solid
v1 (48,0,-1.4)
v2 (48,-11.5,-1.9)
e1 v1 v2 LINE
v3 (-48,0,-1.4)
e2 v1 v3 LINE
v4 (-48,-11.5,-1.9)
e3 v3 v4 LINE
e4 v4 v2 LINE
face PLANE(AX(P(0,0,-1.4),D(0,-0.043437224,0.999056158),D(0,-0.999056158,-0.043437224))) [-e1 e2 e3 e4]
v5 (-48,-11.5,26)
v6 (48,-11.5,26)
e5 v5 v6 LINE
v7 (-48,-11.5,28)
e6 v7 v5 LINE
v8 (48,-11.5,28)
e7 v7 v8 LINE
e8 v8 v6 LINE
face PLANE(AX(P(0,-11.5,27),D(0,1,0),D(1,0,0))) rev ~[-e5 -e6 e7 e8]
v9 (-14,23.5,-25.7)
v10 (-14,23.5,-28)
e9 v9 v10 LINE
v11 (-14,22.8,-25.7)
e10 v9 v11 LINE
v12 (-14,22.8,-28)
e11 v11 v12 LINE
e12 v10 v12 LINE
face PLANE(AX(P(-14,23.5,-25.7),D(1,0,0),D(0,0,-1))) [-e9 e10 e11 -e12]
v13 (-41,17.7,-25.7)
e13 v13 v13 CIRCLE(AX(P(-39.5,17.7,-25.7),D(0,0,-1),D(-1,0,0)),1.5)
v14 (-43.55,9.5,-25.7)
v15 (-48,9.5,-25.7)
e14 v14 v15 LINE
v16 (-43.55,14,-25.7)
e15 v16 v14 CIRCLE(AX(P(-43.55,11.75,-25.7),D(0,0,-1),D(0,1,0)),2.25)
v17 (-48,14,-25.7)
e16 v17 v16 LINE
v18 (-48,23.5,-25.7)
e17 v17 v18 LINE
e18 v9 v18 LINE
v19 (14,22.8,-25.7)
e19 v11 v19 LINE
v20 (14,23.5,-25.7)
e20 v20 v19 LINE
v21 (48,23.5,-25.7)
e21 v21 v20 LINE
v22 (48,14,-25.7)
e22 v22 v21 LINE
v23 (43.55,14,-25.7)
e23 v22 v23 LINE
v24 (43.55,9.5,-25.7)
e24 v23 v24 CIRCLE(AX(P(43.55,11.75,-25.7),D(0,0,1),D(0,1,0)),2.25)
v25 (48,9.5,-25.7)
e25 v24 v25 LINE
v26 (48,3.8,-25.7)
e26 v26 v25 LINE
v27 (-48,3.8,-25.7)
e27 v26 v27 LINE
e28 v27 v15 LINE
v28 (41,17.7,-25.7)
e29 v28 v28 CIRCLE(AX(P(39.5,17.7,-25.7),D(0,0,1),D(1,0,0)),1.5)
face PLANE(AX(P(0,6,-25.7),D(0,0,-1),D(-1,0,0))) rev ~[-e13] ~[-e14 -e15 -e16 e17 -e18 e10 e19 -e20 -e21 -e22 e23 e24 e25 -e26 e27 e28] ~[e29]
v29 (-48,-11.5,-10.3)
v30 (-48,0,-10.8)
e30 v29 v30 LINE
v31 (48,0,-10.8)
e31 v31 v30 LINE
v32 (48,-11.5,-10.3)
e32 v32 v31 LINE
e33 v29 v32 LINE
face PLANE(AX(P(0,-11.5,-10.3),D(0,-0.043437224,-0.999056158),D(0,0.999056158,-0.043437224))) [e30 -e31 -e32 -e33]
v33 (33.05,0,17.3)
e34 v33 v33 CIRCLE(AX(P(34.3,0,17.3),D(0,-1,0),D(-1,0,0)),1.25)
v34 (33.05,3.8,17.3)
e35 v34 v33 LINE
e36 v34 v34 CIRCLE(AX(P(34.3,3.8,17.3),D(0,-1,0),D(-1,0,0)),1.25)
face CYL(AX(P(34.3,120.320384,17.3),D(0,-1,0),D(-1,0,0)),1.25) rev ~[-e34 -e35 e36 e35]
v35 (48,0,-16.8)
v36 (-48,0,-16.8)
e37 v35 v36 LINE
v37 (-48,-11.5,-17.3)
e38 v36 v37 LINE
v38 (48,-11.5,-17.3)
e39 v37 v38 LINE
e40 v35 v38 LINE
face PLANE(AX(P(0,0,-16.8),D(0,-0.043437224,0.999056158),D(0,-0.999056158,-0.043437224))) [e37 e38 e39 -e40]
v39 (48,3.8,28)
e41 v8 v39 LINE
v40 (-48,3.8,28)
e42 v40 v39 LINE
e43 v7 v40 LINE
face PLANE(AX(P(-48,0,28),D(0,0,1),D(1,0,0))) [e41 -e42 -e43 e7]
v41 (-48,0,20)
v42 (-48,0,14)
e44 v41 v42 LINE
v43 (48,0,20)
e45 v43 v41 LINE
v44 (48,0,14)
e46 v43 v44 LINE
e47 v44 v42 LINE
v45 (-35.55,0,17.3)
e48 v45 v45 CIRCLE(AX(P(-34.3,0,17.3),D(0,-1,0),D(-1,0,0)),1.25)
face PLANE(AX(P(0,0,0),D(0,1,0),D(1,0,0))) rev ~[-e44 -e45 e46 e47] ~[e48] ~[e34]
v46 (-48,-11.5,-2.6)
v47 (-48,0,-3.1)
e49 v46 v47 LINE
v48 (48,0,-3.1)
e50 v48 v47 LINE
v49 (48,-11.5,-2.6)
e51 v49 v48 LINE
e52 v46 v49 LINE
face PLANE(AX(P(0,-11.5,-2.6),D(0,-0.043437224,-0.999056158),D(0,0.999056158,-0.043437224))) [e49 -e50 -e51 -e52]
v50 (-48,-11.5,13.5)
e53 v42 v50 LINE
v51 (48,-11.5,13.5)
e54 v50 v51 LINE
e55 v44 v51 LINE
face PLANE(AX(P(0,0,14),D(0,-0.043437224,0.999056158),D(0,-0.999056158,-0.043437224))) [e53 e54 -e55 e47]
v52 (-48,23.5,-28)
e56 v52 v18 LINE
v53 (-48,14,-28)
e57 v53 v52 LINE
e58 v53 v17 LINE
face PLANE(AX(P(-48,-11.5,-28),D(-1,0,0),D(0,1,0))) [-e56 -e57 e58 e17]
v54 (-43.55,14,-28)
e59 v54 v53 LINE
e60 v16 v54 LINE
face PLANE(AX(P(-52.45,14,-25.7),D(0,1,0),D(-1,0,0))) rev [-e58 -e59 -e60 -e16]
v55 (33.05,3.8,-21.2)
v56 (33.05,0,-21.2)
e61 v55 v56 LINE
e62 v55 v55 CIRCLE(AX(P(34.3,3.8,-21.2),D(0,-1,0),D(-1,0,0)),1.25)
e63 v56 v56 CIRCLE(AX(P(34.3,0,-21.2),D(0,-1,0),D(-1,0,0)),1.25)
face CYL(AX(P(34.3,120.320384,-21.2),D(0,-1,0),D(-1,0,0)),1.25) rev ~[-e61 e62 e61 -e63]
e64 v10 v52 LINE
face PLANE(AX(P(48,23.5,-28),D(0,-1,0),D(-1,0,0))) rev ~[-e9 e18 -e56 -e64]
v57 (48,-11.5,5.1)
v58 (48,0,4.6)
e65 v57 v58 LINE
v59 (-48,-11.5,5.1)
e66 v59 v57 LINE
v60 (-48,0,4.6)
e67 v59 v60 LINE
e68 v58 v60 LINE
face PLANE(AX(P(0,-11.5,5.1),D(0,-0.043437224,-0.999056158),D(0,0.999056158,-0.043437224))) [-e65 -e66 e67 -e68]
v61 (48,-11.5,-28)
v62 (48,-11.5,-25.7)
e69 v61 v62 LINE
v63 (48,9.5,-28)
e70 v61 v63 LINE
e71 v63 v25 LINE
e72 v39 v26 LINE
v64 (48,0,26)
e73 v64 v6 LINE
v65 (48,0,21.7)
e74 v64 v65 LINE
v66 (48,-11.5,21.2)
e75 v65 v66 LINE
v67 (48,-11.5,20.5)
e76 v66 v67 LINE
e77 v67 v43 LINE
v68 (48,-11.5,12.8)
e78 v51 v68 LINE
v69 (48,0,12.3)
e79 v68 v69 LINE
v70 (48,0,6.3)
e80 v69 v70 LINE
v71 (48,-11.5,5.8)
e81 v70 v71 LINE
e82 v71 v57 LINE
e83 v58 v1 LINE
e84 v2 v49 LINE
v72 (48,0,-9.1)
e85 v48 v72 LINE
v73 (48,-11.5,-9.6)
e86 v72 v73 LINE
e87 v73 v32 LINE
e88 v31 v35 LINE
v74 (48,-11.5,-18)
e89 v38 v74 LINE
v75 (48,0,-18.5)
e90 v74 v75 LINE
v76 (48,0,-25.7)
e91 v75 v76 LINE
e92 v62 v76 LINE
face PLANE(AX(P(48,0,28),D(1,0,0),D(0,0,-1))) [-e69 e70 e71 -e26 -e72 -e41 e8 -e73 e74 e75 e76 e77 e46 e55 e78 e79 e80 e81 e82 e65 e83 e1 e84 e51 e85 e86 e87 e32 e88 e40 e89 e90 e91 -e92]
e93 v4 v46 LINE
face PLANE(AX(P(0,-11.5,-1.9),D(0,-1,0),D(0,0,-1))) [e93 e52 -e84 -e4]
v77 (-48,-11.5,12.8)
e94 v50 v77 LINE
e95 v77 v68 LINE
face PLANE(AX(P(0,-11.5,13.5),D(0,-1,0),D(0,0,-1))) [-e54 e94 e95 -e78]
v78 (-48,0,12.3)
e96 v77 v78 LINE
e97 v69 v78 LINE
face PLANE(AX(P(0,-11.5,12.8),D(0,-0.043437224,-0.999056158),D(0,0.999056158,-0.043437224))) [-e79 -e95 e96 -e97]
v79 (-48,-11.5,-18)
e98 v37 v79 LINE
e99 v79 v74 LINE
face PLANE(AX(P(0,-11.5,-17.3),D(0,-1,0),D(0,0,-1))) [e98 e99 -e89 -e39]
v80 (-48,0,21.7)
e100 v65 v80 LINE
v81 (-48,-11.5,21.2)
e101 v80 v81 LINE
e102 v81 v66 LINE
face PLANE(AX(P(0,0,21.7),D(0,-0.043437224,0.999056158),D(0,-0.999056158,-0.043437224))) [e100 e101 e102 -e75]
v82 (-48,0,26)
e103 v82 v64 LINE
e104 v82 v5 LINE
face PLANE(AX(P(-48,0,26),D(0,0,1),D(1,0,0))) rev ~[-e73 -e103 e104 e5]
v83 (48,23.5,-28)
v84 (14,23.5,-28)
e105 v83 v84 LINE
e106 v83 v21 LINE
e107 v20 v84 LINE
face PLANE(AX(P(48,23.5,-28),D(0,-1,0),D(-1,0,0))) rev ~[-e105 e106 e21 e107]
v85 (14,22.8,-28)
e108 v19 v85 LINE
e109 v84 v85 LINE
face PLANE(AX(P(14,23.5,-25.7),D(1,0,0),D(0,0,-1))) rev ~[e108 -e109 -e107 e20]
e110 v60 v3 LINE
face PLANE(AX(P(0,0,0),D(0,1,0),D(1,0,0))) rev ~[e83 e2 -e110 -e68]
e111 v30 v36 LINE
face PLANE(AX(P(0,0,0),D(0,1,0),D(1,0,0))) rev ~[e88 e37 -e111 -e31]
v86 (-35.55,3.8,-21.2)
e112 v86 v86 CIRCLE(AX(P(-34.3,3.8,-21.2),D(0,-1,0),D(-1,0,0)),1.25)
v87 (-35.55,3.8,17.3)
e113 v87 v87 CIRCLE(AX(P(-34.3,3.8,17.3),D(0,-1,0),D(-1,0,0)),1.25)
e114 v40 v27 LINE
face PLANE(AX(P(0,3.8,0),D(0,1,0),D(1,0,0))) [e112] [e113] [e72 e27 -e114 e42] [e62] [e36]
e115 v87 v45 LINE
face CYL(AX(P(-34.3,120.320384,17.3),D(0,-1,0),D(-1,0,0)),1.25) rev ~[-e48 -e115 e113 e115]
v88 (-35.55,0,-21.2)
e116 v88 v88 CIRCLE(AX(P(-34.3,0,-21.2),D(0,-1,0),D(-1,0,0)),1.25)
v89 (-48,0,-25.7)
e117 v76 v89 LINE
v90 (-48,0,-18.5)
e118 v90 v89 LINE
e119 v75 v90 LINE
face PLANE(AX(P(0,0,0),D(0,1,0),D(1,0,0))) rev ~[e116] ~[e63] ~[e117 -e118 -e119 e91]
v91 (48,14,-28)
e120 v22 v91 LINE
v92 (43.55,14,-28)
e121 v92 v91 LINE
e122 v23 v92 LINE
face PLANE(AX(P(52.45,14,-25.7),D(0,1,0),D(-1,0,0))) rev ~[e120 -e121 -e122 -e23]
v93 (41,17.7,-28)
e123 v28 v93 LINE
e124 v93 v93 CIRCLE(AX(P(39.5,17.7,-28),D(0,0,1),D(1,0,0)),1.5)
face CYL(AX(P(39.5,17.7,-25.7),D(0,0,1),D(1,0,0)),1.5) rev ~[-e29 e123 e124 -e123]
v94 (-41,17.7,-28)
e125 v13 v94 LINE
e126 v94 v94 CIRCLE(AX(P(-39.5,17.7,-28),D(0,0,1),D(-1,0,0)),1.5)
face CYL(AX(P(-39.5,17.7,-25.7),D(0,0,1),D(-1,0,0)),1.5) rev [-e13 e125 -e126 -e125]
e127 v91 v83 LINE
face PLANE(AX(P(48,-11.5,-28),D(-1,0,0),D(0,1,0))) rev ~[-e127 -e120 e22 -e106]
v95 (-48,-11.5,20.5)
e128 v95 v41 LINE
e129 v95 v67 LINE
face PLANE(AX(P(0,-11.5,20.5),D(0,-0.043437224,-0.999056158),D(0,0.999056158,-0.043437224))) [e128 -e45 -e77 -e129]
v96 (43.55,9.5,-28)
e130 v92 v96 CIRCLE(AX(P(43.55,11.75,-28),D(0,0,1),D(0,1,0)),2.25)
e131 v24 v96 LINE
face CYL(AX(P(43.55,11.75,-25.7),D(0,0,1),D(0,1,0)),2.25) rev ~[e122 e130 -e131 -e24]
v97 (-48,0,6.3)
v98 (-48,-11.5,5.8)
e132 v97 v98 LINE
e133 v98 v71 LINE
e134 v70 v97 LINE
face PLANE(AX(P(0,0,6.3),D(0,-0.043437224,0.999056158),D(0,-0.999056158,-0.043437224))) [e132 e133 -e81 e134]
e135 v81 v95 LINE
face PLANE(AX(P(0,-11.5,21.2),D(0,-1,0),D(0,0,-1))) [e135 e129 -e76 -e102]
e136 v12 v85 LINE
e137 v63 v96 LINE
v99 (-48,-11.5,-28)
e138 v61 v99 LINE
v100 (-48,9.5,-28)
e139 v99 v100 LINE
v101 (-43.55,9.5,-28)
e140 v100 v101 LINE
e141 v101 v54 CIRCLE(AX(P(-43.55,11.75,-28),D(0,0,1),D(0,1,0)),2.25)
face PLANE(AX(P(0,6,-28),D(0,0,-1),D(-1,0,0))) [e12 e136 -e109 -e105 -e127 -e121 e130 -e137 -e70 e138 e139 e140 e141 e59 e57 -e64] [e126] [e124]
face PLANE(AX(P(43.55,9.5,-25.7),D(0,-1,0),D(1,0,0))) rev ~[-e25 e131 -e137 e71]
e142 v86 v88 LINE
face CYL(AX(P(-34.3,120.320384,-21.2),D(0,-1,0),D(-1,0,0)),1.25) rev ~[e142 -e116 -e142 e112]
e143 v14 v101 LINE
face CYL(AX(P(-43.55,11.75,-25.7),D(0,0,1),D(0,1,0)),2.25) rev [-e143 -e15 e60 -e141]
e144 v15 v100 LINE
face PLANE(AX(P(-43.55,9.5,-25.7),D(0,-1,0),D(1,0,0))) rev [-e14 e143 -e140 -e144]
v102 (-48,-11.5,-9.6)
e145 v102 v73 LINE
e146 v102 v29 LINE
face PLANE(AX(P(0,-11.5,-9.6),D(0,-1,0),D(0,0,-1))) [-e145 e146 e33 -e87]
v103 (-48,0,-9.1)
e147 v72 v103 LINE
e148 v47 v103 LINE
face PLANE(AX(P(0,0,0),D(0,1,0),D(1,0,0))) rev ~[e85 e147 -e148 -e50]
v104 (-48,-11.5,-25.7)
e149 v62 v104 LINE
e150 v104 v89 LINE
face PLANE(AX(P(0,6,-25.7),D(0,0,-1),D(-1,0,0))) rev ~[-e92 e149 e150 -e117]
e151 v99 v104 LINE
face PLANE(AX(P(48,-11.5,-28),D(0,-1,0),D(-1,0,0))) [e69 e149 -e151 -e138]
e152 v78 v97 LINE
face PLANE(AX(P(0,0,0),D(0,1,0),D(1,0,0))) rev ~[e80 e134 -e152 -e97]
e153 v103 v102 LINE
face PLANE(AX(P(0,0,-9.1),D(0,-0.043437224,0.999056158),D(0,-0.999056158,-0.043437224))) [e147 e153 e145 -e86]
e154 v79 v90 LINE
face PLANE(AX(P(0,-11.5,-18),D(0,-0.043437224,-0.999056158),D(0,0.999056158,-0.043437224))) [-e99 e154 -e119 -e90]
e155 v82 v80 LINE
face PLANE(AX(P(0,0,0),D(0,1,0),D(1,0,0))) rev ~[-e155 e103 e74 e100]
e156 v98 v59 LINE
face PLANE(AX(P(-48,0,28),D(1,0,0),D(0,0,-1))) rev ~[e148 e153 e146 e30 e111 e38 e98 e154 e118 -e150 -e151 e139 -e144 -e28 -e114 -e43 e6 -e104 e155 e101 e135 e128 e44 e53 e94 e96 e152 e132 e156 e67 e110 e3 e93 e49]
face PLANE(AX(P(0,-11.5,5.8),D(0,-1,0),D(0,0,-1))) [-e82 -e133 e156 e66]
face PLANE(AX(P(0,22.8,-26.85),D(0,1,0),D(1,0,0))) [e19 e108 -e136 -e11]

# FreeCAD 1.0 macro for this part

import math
import FreeCAD as App
import Part
import Sketcher
from FreeCAD import Vector
Q = App.Units.Quantity

doc = App.newDocument("Part")
body = doc.addObject("PartDesign::Body", "Body")

# Sketch on XZ plane
sketch1 = body.newObject("Sketcher::SketchObject", "Sketch")
sketch1.AttachmentSupport = (doc.getObject("XZ_Plane"), [""])
sketch1.MapMode = "FlatFace"
sketch1.addGeometry(Part.LineSegment(Vector(-48, -28, 0), Vector(-48, 28, 0)), False)
sketch1.addGeometry(Part.LineSegment(Vector(-48, 28, 0), Vector(48, 28, 0)), False)
sketch1.addGeometry(Part.LineSegment(Vector(48, 28, 0), Vector(48, -28, 0)), False)
sketch1.addGeometry(Part.LineSegment(Vector(48, -28, 0), Vector(-48, -28, 0)), False)
sketch1.addConstraint(Sketcher.Constraint("Coincident", 0, 2, 1, 1))
sketch1.addConstraint(Sketcher.Constraint("Coincident", 1, 2, 2, 1))
sketch1.addConstraint(Sketcher.Constraint("Coincident", 2, 2, 3, 1))
sketch1.addConstraint(Sketcher.Constraint("Coincident", 3, 2, 0, 1))
sketch1.addConstraint(Sketcher.Constraint("Vertical", 0))
sketch1.addConstraint(Sketcher.Constraint("Horizontal", 1))
sketch1.addConstraint(Sketcher.Constraint("Vertical", 2))
sketch1.addConstraint(Sketcher.Constraint("Horizontal", 3))
sketch1.addConstraint(Sketcher.Constraint("Symmetric", 0, 2, 2, 2, -1, 1))
sketch1.addConstraint(Sketcher.Constraint("DistanceX", 1, 1, 1, 2, Q("96 mm")))
sketch1.addConstraint(Sketcher.Constraint("DistanceY", 0, 1, 0, 2, Q("56 mm")))
pad1 = body.newObject("PartDesign::Pad", "Pad")
pad1.Profile = sketch1
pad1.Length = 3.8
pad1.Reversed = True

# Sketch on XY plane
sketch2 = body.newObject("Sketcher::SketchObject", "Sketch001")
sketch2.AttachmentSupport = (doc.getObject("XY_Plane"), [""])
sketch2.MapMode = "FlatFace"
sketch2.AttachmentOffset = App.Placement(Vector(0, 0, -28), App.Rotation())
sketch2.addGeometry(Part.LineSegment(Vector(48, 24, 0), Vector(48, -12, 0)), False)
sketch2.addGeometry(Part.LineSegment(Vector(48, -12, 0), Vector(-48, -12, 0)), False)
sketch2.addGeometry(Part.LineSegment(Vector(-48, -12, 0), Vector(-48, 24, 0)), False)
sketch2.addGeometry(Part.LineSegment(Vector(-48, 24, 0), Vector(48, 24, 0)), False)
sketch2.addConstraint(Sketcher.Constraint("Coincident", 0, 2, 1, 1))
sketch2.addConstraint(Sketcher.Constraint("Coincident", 1, 2, 2, 1))
sketch2.addConstraint(Sketcher.Constraint("Coincident", 2, 2, 3, 1))
sketch2.addConstraint(Sketcher.Constraint("Coincident", 3, 2, 0, 1))
sketch2.addConstraint(Sketcher.Constraint("Vertical", 0))
sketch2.addConstraint(Sketcher.Constraint("Horizontal", 1))
sketch2.addConstraint(Sketcher.Constraint("Vertical", 2))
sketch2.addConstraint(Sketcher.Constraint("Horizontal", 3))
sketch2.addConstraint(Sketcher.Constraint("DistanceX", 1, 2, 1, 1, Q("96 mm")))
sketch2.addConstraint(Sketcher.Constraint("DistanceY", 0, 2, 0, 1, Q("35 mm")))
sketch2.addConstraint(Sketcher.Constraint("DistanceX", -1, 1, 0, 2, Q("48 mm")))
sketch2.addConstraint(Sketcher.Constraint("DistanceY", 0, 2, -1, 1, Q("11.5 mm")))
pad2 = body.newObject("PartDesign::Pad", "Pad001")
pad2.Profile = sketch2
pad2.Length = 2.3

# Sketch on XY plane
sketch3 = body.newObject("Sketcher::SketchObject", "Sketch002")
sketch3.AttachmentSupport = (doc.getObject("XY_Plane"), [""])
sketch3.MapMode = "FlatFace"
sketch3.AttachmentOffset = App.Placement(Vector(0, 0, -25.7), App.Rotation())
sketch3.addGeometry(Part.LineSegment(Vector(43.5, 14, 0), Vector(52.5, 14, 0)), False)
sketch3.addGeometry(Part.ArcOfCircle(Part.Circle(Vector(52.5, 11.8, 0), Vector(0, 0, 1), 2.2), math.radians(-90), math.radians(90)), False)
sketch3.addGeometry(Part.LineSegment(Vector(52.5, 9.5, 0), Vector(43.5, 9.5, 0)), False)
sketch3.addGeometry(Part.ArcOfCircle(Part.Circle(Vector(43.5, 11.8, 0), Vector(0, 0, 1), 2.2), math.radians(90), math.radians(270)), False)
sketch3.addConstraint(Sketcher.Constraint("Tangent", 0, 2, 1, 2))
sketch3.addConstraint(Sketcher.Constraint("Tangent", 1, 1, 2, 1))
sketch3.addConstraint(Sketcher.Constraint("Tangent", 2, 2, 3, 2))
sketch3.addConstraint(Sketcher.Constraint("Tangent", 3, 1, 0, 1))
sketch3.addConstraint(Sketcher.Constraint("Horizontal", 0))
sketch3.addConstraint(Sketcher.Constraint("Horizontal", 2))
sketch3.addConstraint(Sketcher.Constraint("Radius", 1, Q("2.25 mm")))
sketch3.addConstraint(Sketcher.Constraint("DistanceX", 0, 1, 0, 2, Q("8.9 mm")))
sketch3.addConstraint(Sketcher.Constraint("DistanceY", -1, 1, 0, 2, Q("14 mm")))
sketch3.addConstraint(Sketcher.Constraint("DistanceX", -1, 1, 1, 3, Q("52.45 mm")))
pocket1 = body.newObject("PartDesign::Pocket", "Pocket")
pocket1.Profile = sketch3
pocket1.Type = "ThroughAll"

# Sketch on XY plane
sketch4 = body.newObject("Sketcher::SketchObject", "Sketch003")
sketch4.AttachmentSupport = (doc.getObject("XY_Plane"), [""])
sketch4.MapMode = "FlatFace"
sketch4.AttachmentOffset = App.Placement(Vector(0, 0, -25.7), App.Rotation())
sketch4.addGeometry(Part.Circle(Vector(39.5, 17.7, 0), Vector(0, 0, 1), 1.5), False)
sketch4.addConstraint(Sketcher.Constraint("Diameter", 0, Q("3 mm")))
sketch4.addConstraint(Sketcher.Constraint("DistanceX", -1, 1, 0, 3, Q("39.5 mm")))
sketch4.addConstraint(Sketcher.Constraint("DistanceY", -1, 1, 0, 3, Q("17.7 mm")))
pocket2 = body.newObject("PartDesign::Pocket", "Pocket001")
pocket2.Profile = sketch4
pocket2.Type = "ThroughAll"
doc.recompute()

mirrored = body.newObject("PartDesign::Mirrored", "Mirrored")
mirrored.Originals = [pocket1, pocket2]
mirrored.MirrorPlane = (doc.getObject("YZ_Plane"), [""])
body.Tip = mirrored

# Sketch on XZ plane
sketch5 = body.newObject("Sketcher::SketchObject", "Sketch004")
sketch5.AttachmentSupport = (doc.getObject("XZ_Plane"), [""])
sketch5.MapMode = "FlatFace"
sketch5.addGeometry(Part.LineSegment(Vector(-48, 26, 0), Vector(-48, 28, 0)), False)
sketch5.addGeometry(Part.LineSegment(Vector(-48, 28, 0), Vector(48, 28, 0)), False)
sketch5.addGeometry(Part.LineSegment(Vector(48, 28, 0), Vector(48, 26, 0)), False)
sketch5.addGeometry(Part.LineSegment(Vector(48, 26, 0), Vector(-48, 26, 0)), False)
sketch5.addConstraint(Sketcher.Constraint("Coincident", 0, 2, 1, 1))
sketch5.addConstraint(Sketcher.Constraint("Coincident", 1, 2, 2, 1))
sketch5.addConstraint(Sketcher.Constraint("Coincident", 2, 2, 3, 1))
sketch5.addConstraint(Sketcher.Constraint("Coincident", 3, 2, 0, 1))
sketch5.addConstraint(Sketcher.Constraint("Vertical", 0))
sketch5.addConstraint(Sketcher.Constraint("Horizontal", 1))
sketch5.addConstraint(Sketcher.Constraint("Vertical", 2))
sketch5.addConstraint(Sketcher.Constraint("Horizontal", 3))
sketch5.addConstraint(Sketcher.Constraint("DistanceX", 1, 1, 1, 2, Q("96 mm")))
sketch5.addConstraint(Sketcher.Constraint("DistanceY", 0, 1, 0, 2, Q("2 mm")))
sketch5.addConstraint(Sketcher.Constraint("DistanceX", 0, 2, -1, 1, Q("48 mm")))
sketch5.addConstraint(Sketcher.Constraint("DistanceY", -1, 1, 0, 2, Q("28 mm")))
pad3 = body.newObject("PartDesign::Pad", "Pad002")
pad3.Profile = sketch5
pad3.Length = 11.5

# Sketch on YZ plane
sketch6 = body.newObject("Sketcher::SketchObject", "Sketch005")
sketch6.AttachmentSupport = (doc.getObject("YZ_Plane"), [""])
sketch6.MapMode = "FlatFace"
sketch6.addGeometry(Part.LineSegment(Vector(0, 21.7, 0), Vector(-11.5, 21.2, 0)), False)
sketch6.addGeometry(Part.LineSegment(Vector(-11.5, 21.2, 0), Vector(-11.5, 20.5, 0)), False)
sketch6.addGeometry(Part.LineSegment(Vector(-11.5, 20.5, 0), Vector(0, 20, 0)), False)
sketch6.addGeometry(Part.LineSegment(Vector(0, 20, 0), Vector(0, 21.7, 0)), False)
sketch6.addConstraint(Sketcher.Constraint("Coincident", 0, 2, 1, 1))
sketch6.addConstraint(Sketcher.Constraint("Coincident", 1, 2, 2, 1))
sketch6.addConstraint(Sketcher.Constraint("Coincident", 2, 2, 3, 1))
sketch6.addConstraint(Sketcher.Constraint("Coincident", 3, 2, 0, 1))
sketch6.addConstraint(Sketcher.Constraint("Vertical", 1))
sketch6.addConstraint(Sketcher.Constraint("Vertical", 3))
sketch6.addConstraint(Sketcher.Constraint("PointOnObject", 2, 2, -2))
sketch6.addConstraint(Sketcher.Constraint("Equal", 0, 2))
sketch6.addConstraint(Sketcher.Constraint("DistanceY", 1, 2, 1, 1, Q("0.7 mm")))
sketch6.addConstraint(Sketcher.Constraint("DistanceY", 3, 1, 3, 2, Q("1.7 mm")))
sketch6.addConstraint(Sketcher.Constraint("DistanceY", -1, 1, 2, 2, Q("20 mm")))
sketch6.addConstraint(Sketcher.Constraint("DistanceX", 0, 2, -1, 1, Q("11.5 mm")))
pad4 = body.newObject("PartDesign::Pad", "Pad003")
pad4.Profile = sketch6
pad4.Length = 96
pad4.Midplane = True
doc.recompute()

linearpattern = body.newObject("PartDesign::LinearPattern", "LinearPattern")
linearpattern.Originals = [pad4]
linearpattern.Direction = (doc.getObject("Z_Axis"), [""])
linearpattern.Mode = "offset"
linearpattern.Offset = 7.7
linearpattern.Occurrences = 6
linearpattern.Reversed = True
body.Tip = linearpattern

# Sketch on XZ plane
sketch7 = body.newObject("Sketcher::SketchObject", "Sketch006")
sketch7.AttachmentSupport = (doc.getObject("XZ_Plane"), [""])
sketch7.MapMode = "FlatFace"
sketch7.AttachmentOffset = App.Placement(Vector(0, 0, -23.5), App.Rotation())
sketch7.addGeometry(Part.LineSegment(Vector(-14, -28, 0), Vector(-14, -25.7, 0)), False)
sketch7.addGeometry(Part.LineSegment(Vector(-14, -25.7, 0), Vector(14, -25.7, 0)), False)
sketch7.addGeometry(Part.LineSegment(Vector(14, -25.7, 0), Vector(14, -28, 0)), False)
sketch7.addGeometry(Part.LineSegment(Vector(14, -28, 0), Vector(-14, -28, 0)), False)
sketch7.addConstraint(Sketcher.Constraint("Coincident", 0, 2, 1, 1))
sketch7.addConstraint(Sketcher.Constraint("Coincident", 1, 2, 2, 1))
sketch7.addConstraint(Sketcher.Constraint("Coincident", 2, 2, 3, 1))
sketch7.addConstraint(Sketcher.Constraint("Coincident", 3, 2, 0, 1))
sketch7.addConstraint(Sketcher.Constraint("Vertical", 0))
sketch7.addConstraint(Sketcher.Constraint("Horizontal", 1))
sketch7.addConstraint(Sketcher.Constraint("Vertical", 2))
sketch7.addConstraint(Sketcher.Constraint("Horizontal", 3))
sketch7.addConstraint(Sketcher.Constraint("DistanceX", 1, 1, 1, 2, Q("28 mm")))
sketch7.addConstraint(Sketcher.Constraint("DistanceY", 0, 1, 0, 2, Q("2.3 mm")))
sketch7.addConstraint(Sketcher.Constraint("DistanceX", 0, 2, -1, 1, Q("14 mm")))
sketch7.addConstraint(Sketcher.Constraint("DistanceY", 2, 2, -1, 1, Q("28 mm")))
pocket3 = body.newObject("PartDesign::Pocket", "Pocket002")
pocket3.Profile = sketch7
pocket3.Length = 0.7
pocket3.Reversed = True

# Sketch on XZ plane
sketch8 = body.newObject("Sketcher::SketchObject", "Sketch007")
sketch8.AttachmentSupport = (doc.getObject("XZ_Plane"), [""])
sketch8.MapMode = "FlatFace"
sketch8.AttachmentOffset = App.Placement(Vector(0, 0, -3.8), App.Rotation())
sketch8.addGeometry(Part.Circle(Vector(-34.3, 17.3, 0), Vector(0, 0, 1), 1.2), False)
sketch8.addGeometry(Part.Circle(Vector(34.3, 17.3, 0), Vector(0, 0, 1), 1.2), False)
sketch8.addConstraint(Sketcher.Constraint("Equal", 0, 1))
sketch8.addConstraint(Sketcher.Constraint("Symmetric", 0, 3, 1, 3, -2))
sketch8.addConstraint(Sketcher.Constraint("Diameter", 0, Q("2.5 mm")))
sketch8.addConstraint(Sketcher.Constraint("DistanceX", 0, 3, -1, 1, Q("34.3 mm")))
sketch8.addConstraint(Sketcher.Constraint("DistanceY", -1, 1, 0, 3, Q("17.3 mm")))
doc.recompute()
hole = body.newObject("PartDesign::Hole", "Hole")
hole.Profile = sketch8
hole.ThreadType = "None"
hole.Diameter = 2.5
hole.DepthType = "ThroughAll"
hole.Reversed = True
doc.recompute()

linearpattern2 = body.newObject("PartDesign::LinearPattern", "LinearPattern001")
linearpattern2.Originals = [hole]
linearpattern2.Direction = (doc.getObject("Z_Axis"), [""])
linearpattern2.Mode = "offset"
linearpattern2.Offset = 38.5
linearpattern2.Occurrences = 2
linearpattern2.Reversed = True
body.Tip = linearpattern2

doc.recompute()
